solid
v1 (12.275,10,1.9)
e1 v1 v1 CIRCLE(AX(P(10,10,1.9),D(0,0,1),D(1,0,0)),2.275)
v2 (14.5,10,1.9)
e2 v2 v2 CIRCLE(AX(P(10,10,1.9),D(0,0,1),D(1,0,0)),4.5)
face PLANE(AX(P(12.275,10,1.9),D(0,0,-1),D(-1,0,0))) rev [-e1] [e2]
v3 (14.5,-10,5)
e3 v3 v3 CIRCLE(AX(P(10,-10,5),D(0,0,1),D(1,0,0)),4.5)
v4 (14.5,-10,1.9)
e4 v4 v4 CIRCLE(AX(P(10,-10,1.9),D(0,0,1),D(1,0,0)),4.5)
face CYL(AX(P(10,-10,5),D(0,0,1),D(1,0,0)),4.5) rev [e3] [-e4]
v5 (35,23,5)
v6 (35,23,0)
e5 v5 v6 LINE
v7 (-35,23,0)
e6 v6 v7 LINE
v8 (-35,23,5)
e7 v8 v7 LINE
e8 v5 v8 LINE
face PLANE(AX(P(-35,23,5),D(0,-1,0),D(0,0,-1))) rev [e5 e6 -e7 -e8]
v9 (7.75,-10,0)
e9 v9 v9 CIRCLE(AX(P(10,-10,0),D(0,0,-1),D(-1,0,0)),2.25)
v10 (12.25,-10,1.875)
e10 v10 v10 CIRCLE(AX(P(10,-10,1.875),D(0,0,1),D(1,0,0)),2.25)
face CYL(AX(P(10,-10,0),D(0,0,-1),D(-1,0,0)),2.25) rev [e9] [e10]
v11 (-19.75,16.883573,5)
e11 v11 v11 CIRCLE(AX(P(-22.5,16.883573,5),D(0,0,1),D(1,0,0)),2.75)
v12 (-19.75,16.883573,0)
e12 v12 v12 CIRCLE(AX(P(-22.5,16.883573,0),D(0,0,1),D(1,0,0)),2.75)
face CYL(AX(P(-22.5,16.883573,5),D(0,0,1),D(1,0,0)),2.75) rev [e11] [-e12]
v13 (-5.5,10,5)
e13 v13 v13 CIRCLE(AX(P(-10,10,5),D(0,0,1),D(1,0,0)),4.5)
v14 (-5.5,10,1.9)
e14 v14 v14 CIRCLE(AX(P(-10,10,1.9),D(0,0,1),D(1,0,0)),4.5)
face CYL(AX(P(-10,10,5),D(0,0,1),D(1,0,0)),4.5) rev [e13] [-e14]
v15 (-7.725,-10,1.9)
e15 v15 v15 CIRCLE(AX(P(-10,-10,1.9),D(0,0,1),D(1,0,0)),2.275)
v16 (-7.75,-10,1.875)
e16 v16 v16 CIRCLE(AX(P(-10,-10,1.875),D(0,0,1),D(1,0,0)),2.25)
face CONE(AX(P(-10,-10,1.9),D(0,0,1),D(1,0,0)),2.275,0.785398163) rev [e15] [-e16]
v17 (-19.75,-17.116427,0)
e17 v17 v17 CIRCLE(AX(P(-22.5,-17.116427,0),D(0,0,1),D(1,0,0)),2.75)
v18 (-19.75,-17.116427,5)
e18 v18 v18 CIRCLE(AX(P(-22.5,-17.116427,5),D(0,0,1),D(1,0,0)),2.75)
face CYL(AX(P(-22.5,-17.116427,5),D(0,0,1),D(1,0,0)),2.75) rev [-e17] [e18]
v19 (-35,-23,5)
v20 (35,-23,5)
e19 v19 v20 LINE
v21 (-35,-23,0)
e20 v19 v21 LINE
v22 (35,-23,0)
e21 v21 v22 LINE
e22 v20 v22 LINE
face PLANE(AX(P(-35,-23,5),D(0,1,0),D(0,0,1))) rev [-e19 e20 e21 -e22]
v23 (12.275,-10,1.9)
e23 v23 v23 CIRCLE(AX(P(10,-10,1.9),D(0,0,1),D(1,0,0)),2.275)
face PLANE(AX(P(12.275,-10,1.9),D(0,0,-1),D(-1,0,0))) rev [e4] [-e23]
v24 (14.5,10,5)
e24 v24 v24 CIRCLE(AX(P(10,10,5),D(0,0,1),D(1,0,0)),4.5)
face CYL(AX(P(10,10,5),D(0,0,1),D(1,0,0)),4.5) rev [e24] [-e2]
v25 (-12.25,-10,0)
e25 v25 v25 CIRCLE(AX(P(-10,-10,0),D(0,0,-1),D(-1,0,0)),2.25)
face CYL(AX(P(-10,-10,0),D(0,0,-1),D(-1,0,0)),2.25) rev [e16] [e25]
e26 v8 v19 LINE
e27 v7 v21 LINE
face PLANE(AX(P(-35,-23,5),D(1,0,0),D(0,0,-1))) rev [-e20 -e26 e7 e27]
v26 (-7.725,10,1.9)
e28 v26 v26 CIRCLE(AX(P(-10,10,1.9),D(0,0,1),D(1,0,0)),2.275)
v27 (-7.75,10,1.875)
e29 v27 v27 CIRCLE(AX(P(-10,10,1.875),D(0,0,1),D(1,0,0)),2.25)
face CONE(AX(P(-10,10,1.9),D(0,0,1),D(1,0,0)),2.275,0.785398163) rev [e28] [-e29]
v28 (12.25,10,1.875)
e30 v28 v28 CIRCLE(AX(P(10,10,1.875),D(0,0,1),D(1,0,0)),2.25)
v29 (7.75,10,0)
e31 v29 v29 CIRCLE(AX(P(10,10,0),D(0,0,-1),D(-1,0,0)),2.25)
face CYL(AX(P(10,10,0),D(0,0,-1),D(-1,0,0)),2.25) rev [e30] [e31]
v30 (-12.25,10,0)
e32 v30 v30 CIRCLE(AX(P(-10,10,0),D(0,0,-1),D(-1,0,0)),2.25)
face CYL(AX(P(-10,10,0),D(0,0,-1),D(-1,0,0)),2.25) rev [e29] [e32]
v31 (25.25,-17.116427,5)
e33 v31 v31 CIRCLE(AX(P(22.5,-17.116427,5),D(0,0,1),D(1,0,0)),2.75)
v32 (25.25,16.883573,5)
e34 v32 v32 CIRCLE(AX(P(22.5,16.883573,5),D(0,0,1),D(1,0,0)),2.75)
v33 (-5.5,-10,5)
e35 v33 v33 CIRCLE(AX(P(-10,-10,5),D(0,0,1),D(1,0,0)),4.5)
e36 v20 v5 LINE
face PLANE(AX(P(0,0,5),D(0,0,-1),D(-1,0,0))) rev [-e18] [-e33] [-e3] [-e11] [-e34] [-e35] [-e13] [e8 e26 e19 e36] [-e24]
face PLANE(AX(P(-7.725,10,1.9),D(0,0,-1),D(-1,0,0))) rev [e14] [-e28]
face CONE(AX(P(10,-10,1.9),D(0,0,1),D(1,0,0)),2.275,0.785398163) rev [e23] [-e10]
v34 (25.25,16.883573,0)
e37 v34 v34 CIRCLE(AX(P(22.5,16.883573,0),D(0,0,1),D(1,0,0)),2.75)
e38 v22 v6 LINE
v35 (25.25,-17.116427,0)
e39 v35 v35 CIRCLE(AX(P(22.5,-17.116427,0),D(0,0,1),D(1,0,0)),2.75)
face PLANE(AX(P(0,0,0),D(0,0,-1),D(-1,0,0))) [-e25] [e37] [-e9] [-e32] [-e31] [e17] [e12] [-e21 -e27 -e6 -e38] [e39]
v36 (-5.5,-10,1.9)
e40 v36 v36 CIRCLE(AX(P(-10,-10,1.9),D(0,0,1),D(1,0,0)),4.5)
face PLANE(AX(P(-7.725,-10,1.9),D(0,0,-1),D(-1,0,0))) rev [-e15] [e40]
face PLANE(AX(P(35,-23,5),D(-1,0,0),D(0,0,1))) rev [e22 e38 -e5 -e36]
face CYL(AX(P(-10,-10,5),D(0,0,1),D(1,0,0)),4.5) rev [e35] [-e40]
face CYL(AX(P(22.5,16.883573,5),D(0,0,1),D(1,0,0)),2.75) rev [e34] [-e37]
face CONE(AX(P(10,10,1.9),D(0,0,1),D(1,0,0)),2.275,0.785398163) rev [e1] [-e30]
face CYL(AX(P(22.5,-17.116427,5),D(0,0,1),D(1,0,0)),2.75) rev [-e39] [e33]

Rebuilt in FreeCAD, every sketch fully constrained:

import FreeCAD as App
import Part
import Sketcher

V = App.Vector
Q = App.Units.Quantity

doc = App.newDocument("Part")
body = doc.addObject("PartDesign::Body", "Body")

# Sketch on XY plane
sketch1 = body.newObject("Sketcher::SketchObject", "Sketch")
sketch1.AttachmentSupport = (doc.getObject("XY_Plane"), [""])
sketch1.MapMode = "FlatFace"
sketch1.addGeometry(Part.LineSegment(V(-35, 23, 0), V(-35, -23, 0)), False)
sketch1.addGeometry(Part.LineSegment(V(-35, -23, 0), V(35, -23, 0)), False)
sketch1.addGeometry(Part.LineSegment(V(35, -23, 0), V(35, 23, 0)), False)
sketch1.addGeometry(Part.LineSegment(V(35, 23, 0), V(-35, 23, 0)), False)
sketch1.addConstraint(Sketcher.Constraint("Coincident", 0, 2, 1, 1))
sketch1.addConstraint(Sketcher.Constraint("Coincident", 1, 2, 2, 1))
sketch1.addConstraint(Sketcher.Constraint("Coincident", 2, 2, 3, 1))
sketch1.addConstraint(Sketcher.Constraint("Coincident", 3, 2, 0, 1))
sketch1.addConstraint(Sketcher.Constraint("Vertical", 0))
sketch1.addConstraint(Sketcher.Constraint("Horizontal", 1))
sketch1.addConstraint(Sketcher.Constraint("Vertical", 2))
sketch1.addConstraint(Sketcher.Constraint("Horizontal", 3))
sketch1.addConstraint(Sketcher.Constraint("Symmetric", 0, 2, 2, 2, -1, 1))
sketch1.addConstraint(Sketcher.Constraint("DistanceX", 1, 1, 1, 2, 70.0))
sketch1.addConstraint(Sketcher.Constraint("DistanceY", 0, 2, 0, 1, 46.0))
pad1 = body.newObject("PartDesign::Pad", "Pad")
pad1.Profile = sketch1
pad1.Length = 5

# Sketch on XY plane
sketch2 = body.newObject("Sketcher::SketchObject", "Sketch001")
sketch2.AttachmentSupport = (doc.getObject("XY_Plane"), [""])
sketch2.MapMode = "FlatFace"
sketch2.AttachmentOffset = App.Placement(V(0, 0, 5), App.Rotation())
sketch2.addGeometry(Part.Circle(V(22.5, -17.116427, 0), V(0, 0, 1), 2.75), False)
sketch2.addGeometry(Part.Circle(V(22.5, 16.883573, 0), V(0, 0, 1), 2.75), False)
sketch2.addGeometry(Part.Circle(V(-22.5, 16.883573, 0), V(0, 0, 1), 2.75), False)
sketch2.addGeometry(Part.Circle(V(-22.5, -17.116427, 0), V(0, 0, 1), 2.75), False)
sketch2.addConstraint(Sketcher.Constraint("Equal", 0, 1))
sketch2.addConstraint(Sketcher.Constraint("Equal", 1, 2))
sketch2.addConstraint(Sketcher.Constraint("Equal", 2, 3))
sketch2.addConstraint(Sketcher.Constraint("Symmetric", 1, 3, 2, 3, -2))
sketch2.addConstraint(Sketcher.Constraint("Symmetric", 0, 3, 3, 3, -2))
sketch2.addConstraint(Sketcher.Constraint("Vertical", 0, 3, 1, 3))
sketch2.addConstraint(Sketcher.Constraint("Diameter", 0, 5.5))
sketch2.addConstraint(Sketcher.Constraint("DistanceY", 0, 3, 1, 3, 34.0))
sketch2.addConstraint(Sketcher.Constraint("DistanceX", 2, 3, 1, 3, 45.0))
sketch2.addConstraint(Sketcher.Constraint("DistanceY", 0, 3, -1, 1, 17.116427))
doc.recompute()
hole = body.newObject("PartDesign::Hole", "Hole")
hole.Profile = sketch2
hole.ThreadType = "None"
hole.Diameter = 5.5
hole.DepthType = "ThroughAll"

# Sketch on XY plane
sketch3 = body.newObject("Sketcher::SketchObject", "Sketch002")
sketch3.AttachmentSupport = (doc.getObject("XY_Plane"), [""])
sketch3.MapMode = "FlatFace"
sketch3.addGeometry(Part.Circle(V(-10, -10, 0), V(0, 0, 1), 2.25), False)
sketch3.addGeometry(Part.Circle(V(10, -10, 0), V(0, 0, 1), 2.25), False)
sketch3.addGeometry(Part.Circle(V(10, 10, 0), V(0, 0, 1), 2.25), False)
sketch3.addGeometry(Part.Circle(V(-10, 10, 0), V(0, 0, 1), 2.25), False)
sketch3.addConstraint(Sketcher.Constraint("Equal", 0, 1))
sketch3.addConstraint(Sketcher.Constraint("Equal", 1, 2))
sketch3.addConstraint(Sketcher.Constraint("Equal", 2, 3))
sketch3.addConstraint(Sketcher.Constraint("Symmetric", 0, 3, 2, 3, -1, 1))
sketch3.addConstraint(Sketcher.Constraint("Symmetric", 1, 3, 3, 3, -1, 1))
sketch3.addConstraint(Sketcher.Constraint("Symmetric", 0, 3, 1, 3, -2))
sketch3.addConstraint(Sketcher.Constraint("Diameter", 0, 4.5))
sketch3.addConstraint(Sketcher.Constraint("DistanceX", 0, 3, -1, 1, 10.0))
sketch3.addConstraint(Sketcher.Constraint("DistanceY", 0, 3, -1, 1, 10.0))
doc.recompute()
hole2 = body.newObject("PartDesign::Hole", "Hole001")
hole2.Profile = sketch3
hole2.ThreadType = "None"
hole2.Diameter = 4.5
hole2.DepthType = "ThroughAll"
hole2.Reversed = True

# Sketch on YZ plane
sketch4 = body.newObject("Sketcher::SketchObject", "Sketch003")
sketch4.AttachmentSupport = (doc.getObject("YZ_Plane"), [""])
sketch4.MapMode = "FlatFace"
sketch4.AttachmentOffset = App.Placement(V(0, 0, -10), App.Rotation())
sketch4.addGeometry(Part.LineSegment(V(-10, 0, 0), V(-10, 5, 0)), False)
sketch4.addGeometry(Part.LineSegment(V(-10, 5, 0), V(-14.5, 5, 0)), False)
sketch4.addGeometry(Part.LineSegment(V(-14.5, 5, 0), V(-14.5, 1.9, 0)), False)
sketch4.addGeometry(Part.LineSegment(V(-14.5, 1.9, 0), V(-12.275, 1.9, 0)), False)
sketch4.addGeometry(Part.LineSegment(V(-12.275, 1.9, 0), V(-12.25, 1.875, 0)), False)
sketch4.addGeometry(Part.LineSegment(V(-12.25, 1.875, 0), V(-12.25, 0, 0)), False)
sketch4.addGeometry(Part.LineSegment(V(-12.25, 0, 0), V(-10, 0, 0)), False)
sketch4.addGeometry(Part.LineSegment(V(-10, 5, 0), V(-10, 0, 0)), True)  # axis
sketch4.addConstraint(Sketcher.Constraint("Coincident", 0, 2, 1, 1))
sketch4.addConstraint(Sketcher.Constraint("Coincident", 1, 2, 2, 1))
sketch4.addConstraint(Sketcher.Constraint("Coincident", 2, 2, 3, 1))
sketch4.addConstraint(Sketcher.Constraint("Coincident", 3, 2, 4, 1))
sketch4.addConstraint(Sketcher.Constraint("Coincident", 4, 2, 5, 1))
sketch4.addConstraint(Sketcher.Constraint("Coincident", 5, 2, 6, 1))
sketch4.addConstraint(Sketcher.Constraint("Coincident", 6, 2, 0, 1))
sketch4.addConstraint(Sketcher.Constraint("Vertical", 0))
sketch4.addConstraint(Sketcher.Constraint("Horizontal", 1))
sketch4.addConstraint(Sketcher.Constraint("Vertical", 2))
sketch4.addConstraint(Sketcher.Constraint("Horizontal", 3))
sketch4.addConstraint(Sketcher.Constraint("Vertical", 5))
sketch4.addConstraint(Sketcher.Constraint("Horizontal", 6))
sketch4.addConstraint(Sketcher.Constraint("Vertical", 7))
sketch4.addConstraint(Sketcher.Constraint("Coincident", 7, 1, 0, 2))
sketch4.addConstraint(Sketcher.Constraint("PointOnObject", 5, 2, -1))
sketch4.addConstraint(Sketcher.Constraint("PointOnObject", 7, 2, -1))
sketch4.addConstraint(Sketcher.Constraint("DistanceY", 0, 1, 0, 2, 5.0))
sketch4.addConstraint(Sketcher.Constraint("Angle", 4, Q("-45 deg")))
sketch4.addConstraint(Sketcher.Constraint("DistanceX", 1, 2, 1, 1, 4.5))
sketch4.addConstraint(Sketcher.Constraint("DistanceY", 2, 2, 2, 1, 3.1))
sketch4.addConstraint(Sketcher.Constraint("DistanceX", 0, 2, -1, 1, 10.0))
sketch4.addConstraint(Sketcher.Constraint("DistanceX", 6, 1, 6, 2, 2.25))
sketch4.addConstraint(Sketcher.Constraint("DistanceX", 3, 1, 3, 2, 2.225))
groove = body.newObject("PartDesign::Groove", "Groove")
groove.Profile = sketch4
groove.ReferenceAxis = (sketch4, ["Axis0"])
groove.Angle = 360
doc.recompute()

linearpattern = body.newObject("PartDesign::LinearPattern", "LinearPattern")
linearpattern.Originals = [groove]
linearpattern.Direction = (doc.getObject("Y_Axis"), [""])
linearpattern.Mode = "offset"
linearpattern.Offset = 20
linearpattern.Occurrences = 2
body.Tip = linearpattern
doc.recompute()

datumline = body.newObject("PartDesign::Line", "DatumLine")
datumline.Placement = App.Placement(V(0, 0, 0), App.Rotation(V(0, 0, 1), V(0.707106781, 0.707106781, 0)))
linearpattern2 = body.newObject("PartDesign::LinearPattern", "LinearPattern001")
linearpattern2.Originals = [groove]
linearpattern2.Direction = (datumline, [""])
linearpattern2.Mode = "offset"
linearpattern2.Offset = 28.284271
linearpattern2.Occurrences = 2
body.Tip = linearpattern2
doc.recompute()

linearpattern3 = body.newObject("PartDesign::LinearPattern", "LinearPattern002")
linearpattern3.Originals = [groove]
linearpattern3.Direction = (doc.getObject("X_Axis"), [""])
linearpattern3.Mode = "offset"
linearpattern3.Offset = 20
linearpattern3.Occurrences = 2
body.Tip = linearpattern3

doc.recompute()
